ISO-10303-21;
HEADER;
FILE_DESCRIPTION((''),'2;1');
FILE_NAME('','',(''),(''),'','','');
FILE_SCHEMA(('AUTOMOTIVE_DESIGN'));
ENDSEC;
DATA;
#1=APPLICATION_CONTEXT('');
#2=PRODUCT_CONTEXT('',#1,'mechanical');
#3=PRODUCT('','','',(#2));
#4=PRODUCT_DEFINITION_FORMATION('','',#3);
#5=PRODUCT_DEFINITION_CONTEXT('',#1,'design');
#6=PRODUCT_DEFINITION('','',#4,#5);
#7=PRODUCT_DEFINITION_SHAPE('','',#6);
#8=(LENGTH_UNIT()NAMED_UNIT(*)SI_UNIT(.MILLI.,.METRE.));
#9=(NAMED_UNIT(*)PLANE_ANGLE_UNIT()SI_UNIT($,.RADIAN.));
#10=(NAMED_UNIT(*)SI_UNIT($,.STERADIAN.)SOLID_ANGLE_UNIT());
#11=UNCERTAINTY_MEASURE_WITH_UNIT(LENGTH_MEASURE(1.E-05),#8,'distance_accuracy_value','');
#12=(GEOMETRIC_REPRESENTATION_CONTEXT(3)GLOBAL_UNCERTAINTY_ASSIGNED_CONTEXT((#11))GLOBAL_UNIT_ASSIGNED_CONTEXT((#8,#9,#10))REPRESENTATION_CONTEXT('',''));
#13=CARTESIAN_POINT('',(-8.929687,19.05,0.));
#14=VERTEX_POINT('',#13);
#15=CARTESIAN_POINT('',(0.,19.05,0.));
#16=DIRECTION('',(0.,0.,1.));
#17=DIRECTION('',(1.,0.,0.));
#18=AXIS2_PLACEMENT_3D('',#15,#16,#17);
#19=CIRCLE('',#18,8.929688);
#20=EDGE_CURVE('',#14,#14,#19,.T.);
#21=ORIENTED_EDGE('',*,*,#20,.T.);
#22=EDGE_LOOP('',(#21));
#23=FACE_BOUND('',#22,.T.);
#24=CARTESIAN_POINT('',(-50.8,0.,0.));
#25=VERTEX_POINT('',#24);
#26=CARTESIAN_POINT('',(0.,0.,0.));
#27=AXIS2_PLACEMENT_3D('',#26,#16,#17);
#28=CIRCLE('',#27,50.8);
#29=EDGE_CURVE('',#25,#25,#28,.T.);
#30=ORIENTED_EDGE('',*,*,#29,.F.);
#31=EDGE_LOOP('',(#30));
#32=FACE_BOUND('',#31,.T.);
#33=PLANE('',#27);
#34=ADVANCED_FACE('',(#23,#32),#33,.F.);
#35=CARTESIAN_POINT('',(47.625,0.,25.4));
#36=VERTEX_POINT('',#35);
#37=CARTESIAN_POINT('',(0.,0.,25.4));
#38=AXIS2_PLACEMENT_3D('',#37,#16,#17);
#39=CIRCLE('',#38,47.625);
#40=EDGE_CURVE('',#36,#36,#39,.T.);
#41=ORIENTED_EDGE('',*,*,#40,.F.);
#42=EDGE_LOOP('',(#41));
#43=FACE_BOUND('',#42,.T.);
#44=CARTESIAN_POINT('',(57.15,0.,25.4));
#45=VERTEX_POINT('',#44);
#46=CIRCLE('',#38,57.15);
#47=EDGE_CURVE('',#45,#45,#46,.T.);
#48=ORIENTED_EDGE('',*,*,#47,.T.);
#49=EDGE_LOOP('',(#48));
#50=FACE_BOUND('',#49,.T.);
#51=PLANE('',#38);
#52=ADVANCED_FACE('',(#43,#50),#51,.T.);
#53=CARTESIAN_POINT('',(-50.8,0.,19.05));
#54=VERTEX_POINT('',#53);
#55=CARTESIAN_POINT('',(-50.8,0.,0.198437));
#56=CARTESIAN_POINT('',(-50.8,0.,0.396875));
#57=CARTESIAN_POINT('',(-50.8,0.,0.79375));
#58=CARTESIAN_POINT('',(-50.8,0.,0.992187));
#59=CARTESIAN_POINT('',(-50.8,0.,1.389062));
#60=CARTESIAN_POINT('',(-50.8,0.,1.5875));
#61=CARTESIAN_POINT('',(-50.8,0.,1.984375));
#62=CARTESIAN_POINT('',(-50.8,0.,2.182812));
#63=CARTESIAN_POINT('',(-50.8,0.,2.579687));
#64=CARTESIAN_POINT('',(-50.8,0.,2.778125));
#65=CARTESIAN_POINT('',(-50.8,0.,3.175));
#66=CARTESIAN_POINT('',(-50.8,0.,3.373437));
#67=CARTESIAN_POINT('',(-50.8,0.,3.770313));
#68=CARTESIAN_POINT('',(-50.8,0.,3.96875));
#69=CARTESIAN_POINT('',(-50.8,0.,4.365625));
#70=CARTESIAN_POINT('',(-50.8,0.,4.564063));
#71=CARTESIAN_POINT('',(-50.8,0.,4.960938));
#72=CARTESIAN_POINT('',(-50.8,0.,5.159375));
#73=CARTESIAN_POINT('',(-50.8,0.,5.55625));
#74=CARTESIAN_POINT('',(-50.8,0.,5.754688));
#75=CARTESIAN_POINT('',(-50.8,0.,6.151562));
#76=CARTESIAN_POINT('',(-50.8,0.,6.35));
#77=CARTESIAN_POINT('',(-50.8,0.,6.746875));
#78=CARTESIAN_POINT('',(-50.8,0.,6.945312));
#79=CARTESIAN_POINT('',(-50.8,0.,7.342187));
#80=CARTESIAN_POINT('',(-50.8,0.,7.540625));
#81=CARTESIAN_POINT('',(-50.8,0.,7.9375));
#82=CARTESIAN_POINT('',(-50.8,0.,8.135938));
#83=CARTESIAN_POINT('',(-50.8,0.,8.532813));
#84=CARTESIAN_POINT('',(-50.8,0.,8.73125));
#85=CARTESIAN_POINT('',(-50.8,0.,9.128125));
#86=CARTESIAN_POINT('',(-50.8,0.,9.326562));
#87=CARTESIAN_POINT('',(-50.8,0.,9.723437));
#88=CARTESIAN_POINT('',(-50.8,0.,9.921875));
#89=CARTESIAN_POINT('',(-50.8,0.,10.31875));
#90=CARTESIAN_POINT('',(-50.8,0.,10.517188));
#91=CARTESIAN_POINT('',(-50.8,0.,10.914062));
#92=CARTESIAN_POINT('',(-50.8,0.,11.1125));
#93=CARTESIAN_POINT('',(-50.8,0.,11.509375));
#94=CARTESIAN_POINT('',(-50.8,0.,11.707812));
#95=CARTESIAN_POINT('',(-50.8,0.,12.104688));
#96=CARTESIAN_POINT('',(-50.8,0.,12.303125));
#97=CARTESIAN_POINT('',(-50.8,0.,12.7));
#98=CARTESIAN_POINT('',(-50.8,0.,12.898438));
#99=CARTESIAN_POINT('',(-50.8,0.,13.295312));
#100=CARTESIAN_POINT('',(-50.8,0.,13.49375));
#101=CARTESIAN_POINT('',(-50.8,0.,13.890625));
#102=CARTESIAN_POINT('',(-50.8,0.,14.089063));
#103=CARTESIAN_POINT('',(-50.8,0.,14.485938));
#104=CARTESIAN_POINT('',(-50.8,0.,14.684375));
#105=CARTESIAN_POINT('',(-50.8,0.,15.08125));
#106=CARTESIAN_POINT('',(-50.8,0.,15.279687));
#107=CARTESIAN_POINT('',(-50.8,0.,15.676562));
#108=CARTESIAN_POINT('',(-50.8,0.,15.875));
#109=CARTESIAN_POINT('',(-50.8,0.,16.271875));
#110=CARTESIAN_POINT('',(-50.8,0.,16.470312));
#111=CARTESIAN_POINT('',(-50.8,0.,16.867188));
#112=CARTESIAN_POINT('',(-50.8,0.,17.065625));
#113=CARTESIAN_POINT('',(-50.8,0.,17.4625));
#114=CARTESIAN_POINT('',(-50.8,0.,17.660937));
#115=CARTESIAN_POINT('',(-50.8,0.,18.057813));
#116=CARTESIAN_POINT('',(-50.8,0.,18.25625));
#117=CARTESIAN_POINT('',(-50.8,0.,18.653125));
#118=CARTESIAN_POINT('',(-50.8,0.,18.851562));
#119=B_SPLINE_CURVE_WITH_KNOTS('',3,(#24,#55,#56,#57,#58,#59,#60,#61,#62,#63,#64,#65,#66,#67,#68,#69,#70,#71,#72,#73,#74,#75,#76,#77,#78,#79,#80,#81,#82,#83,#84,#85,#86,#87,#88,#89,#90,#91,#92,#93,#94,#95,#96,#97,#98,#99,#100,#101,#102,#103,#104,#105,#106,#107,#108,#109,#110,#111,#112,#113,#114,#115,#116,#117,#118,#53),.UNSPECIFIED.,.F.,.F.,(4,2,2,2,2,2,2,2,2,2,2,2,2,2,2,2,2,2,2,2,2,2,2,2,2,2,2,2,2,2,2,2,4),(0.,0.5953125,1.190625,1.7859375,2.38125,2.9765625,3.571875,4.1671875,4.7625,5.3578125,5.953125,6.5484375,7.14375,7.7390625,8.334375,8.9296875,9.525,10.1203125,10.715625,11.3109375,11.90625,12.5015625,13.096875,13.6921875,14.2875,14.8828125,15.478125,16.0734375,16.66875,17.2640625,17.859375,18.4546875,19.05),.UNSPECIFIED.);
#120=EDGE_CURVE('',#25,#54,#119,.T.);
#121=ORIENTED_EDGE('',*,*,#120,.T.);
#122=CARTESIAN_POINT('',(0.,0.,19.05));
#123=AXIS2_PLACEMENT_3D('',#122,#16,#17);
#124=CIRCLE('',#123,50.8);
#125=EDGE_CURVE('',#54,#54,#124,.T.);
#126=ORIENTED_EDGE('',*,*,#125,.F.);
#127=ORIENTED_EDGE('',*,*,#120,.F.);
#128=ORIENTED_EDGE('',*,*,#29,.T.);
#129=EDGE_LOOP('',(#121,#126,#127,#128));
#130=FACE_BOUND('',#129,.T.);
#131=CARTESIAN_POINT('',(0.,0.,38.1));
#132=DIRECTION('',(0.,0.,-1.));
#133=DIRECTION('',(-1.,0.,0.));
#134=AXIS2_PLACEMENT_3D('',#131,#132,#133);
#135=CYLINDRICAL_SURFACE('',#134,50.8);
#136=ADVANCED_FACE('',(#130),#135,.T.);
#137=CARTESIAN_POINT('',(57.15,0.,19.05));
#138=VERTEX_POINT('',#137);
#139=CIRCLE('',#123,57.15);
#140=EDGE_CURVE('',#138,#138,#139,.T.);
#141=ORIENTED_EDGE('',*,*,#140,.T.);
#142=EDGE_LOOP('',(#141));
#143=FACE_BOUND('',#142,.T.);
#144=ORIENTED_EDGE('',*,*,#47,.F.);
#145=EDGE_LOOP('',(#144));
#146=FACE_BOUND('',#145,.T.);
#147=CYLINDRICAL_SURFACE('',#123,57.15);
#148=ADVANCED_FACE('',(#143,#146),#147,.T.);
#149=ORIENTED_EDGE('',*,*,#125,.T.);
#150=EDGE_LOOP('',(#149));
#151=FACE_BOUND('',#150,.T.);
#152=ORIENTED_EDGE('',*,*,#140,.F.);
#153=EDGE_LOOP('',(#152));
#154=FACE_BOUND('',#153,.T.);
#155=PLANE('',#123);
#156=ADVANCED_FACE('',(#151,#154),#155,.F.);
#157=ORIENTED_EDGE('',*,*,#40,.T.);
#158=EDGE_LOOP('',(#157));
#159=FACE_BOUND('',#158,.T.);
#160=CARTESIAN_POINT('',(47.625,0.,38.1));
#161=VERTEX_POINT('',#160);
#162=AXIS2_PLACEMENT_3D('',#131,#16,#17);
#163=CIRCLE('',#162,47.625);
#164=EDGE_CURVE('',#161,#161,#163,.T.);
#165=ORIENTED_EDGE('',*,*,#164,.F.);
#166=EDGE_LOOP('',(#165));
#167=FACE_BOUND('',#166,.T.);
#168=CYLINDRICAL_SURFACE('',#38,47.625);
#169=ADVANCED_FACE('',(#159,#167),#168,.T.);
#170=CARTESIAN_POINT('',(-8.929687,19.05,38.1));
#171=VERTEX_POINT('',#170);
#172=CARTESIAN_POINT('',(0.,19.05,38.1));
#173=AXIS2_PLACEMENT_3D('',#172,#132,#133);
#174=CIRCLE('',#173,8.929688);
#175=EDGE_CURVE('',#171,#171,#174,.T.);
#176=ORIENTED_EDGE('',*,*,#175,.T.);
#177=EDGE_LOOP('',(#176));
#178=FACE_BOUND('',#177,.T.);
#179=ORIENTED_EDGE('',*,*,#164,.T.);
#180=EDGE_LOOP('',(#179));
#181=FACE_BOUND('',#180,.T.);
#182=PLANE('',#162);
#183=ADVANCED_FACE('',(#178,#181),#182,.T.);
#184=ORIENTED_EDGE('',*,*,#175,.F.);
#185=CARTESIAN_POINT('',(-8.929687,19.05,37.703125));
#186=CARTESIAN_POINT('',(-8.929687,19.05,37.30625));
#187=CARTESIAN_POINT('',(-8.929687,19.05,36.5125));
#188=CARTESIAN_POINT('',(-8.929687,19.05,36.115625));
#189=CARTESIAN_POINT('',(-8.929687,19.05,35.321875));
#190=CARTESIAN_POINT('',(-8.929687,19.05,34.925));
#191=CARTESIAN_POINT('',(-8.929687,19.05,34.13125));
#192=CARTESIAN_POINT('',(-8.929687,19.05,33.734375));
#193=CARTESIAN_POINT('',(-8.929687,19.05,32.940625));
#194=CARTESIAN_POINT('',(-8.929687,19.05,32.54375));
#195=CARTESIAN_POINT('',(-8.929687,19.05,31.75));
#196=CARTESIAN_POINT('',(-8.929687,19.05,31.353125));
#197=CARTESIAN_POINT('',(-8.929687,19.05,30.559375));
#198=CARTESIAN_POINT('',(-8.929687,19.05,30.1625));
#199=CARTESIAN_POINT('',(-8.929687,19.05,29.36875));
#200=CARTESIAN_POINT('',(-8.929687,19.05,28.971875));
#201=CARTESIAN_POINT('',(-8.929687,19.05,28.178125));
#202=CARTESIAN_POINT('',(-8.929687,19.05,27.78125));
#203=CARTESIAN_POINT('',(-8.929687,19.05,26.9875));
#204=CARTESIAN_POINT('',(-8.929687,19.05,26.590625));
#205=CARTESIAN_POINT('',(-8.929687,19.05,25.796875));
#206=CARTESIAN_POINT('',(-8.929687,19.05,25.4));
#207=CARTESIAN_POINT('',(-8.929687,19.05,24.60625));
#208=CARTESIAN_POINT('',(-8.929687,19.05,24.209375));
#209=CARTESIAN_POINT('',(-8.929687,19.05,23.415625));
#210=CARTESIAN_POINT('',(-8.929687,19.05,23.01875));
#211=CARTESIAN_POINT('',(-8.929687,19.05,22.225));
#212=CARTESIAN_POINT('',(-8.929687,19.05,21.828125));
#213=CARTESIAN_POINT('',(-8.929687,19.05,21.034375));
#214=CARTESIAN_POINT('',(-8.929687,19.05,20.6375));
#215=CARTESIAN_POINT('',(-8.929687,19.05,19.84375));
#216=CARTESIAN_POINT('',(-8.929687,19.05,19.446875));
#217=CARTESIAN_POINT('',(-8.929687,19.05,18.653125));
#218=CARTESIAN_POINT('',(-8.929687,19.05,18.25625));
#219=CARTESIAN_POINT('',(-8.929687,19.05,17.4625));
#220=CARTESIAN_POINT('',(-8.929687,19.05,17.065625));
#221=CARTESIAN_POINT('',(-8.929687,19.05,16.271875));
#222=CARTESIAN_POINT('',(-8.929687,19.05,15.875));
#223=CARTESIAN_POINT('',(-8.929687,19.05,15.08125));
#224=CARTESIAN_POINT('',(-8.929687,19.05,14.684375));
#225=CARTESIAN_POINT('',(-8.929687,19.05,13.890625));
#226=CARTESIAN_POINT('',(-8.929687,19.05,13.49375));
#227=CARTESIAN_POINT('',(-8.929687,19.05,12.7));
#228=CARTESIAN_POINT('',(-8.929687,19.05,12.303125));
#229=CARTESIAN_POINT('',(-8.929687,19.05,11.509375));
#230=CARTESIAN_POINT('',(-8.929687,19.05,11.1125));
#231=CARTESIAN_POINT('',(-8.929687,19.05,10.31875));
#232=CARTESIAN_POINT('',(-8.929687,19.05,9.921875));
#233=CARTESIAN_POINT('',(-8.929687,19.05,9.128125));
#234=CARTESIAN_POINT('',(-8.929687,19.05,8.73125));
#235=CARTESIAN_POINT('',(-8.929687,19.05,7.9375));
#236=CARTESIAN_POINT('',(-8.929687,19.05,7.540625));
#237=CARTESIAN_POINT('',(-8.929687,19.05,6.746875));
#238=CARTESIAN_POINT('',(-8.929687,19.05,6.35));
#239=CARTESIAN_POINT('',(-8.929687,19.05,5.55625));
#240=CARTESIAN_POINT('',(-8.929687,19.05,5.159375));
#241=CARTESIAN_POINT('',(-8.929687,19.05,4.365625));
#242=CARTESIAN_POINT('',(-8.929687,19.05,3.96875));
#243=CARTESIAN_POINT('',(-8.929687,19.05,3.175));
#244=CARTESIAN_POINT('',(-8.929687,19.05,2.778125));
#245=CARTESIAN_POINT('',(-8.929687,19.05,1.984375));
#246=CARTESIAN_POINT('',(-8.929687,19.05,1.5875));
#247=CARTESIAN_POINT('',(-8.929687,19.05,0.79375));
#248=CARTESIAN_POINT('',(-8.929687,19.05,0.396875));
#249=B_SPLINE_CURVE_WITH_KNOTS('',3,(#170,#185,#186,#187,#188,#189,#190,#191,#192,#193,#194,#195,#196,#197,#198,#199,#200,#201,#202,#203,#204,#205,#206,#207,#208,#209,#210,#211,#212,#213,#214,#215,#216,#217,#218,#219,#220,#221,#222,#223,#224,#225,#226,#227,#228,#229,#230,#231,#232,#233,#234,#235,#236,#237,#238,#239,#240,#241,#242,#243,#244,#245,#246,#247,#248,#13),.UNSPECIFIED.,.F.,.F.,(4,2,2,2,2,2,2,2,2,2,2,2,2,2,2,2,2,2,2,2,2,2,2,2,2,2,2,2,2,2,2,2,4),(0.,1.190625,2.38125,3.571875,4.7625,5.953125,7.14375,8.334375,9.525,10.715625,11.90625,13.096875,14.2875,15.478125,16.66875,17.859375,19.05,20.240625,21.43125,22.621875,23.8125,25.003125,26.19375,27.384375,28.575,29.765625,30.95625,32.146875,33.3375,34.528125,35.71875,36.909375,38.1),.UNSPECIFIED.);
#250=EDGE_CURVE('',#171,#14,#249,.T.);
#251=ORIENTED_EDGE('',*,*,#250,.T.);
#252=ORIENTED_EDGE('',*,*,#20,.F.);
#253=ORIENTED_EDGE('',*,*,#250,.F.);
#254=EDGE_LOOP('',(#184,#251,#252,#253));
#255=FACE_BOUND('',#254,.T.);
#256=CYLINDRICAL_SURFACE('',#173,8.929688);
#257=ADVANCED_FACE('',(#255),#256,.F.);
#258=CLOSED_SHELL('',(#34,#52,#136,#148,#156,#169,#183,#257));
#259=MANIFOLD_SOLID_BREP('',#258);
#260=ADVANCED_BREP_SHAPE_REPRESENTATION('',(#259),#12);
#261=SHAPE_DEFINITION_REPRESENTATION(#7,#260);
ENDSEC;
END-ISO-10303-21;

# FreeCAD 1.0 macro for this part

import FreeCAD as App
import Part
import Sketcher
Q = App.Units.Quantity

doc = App.newDocument("Part")
body = doc.addObject("PartDesign::Body", "Body")

# Sketch on XY plane
sketch1 = body.newObject("Sketcher::SketchObject", "Sketch")
sketch1.AttachmentSupport = (doc.getObject("XY_Plane"), [""])
sketch1.MapMode = "FlatFace"
sketch1.addGeometry(Part.Circle(App.Vector(0, 0, 0), App.Vector(0, 0, 1), 51), False)
sketch1.addConstraint([
    Sketcher.Constraint("Coincident", 0, 3, -1, 1),
    Sketcher.Constraint("Diameter", 0, Q("4 in")),
])
pad1 = body.newObject("PartDesign::Pad", "Pad")
pad1.Profile = sketch1
pad1.Length = Q("1.5 in")

# Sketch on XY plane
sketch2 = body.newObject("Sketcher::SketchObject", "Sketch001")
sketch2.AttachmentSupport = (doc.getObject("XY_Plane"), [""])
sketch2.MapMode = "FlatFace"
sketch2.AttachmentOffset = App.Placement(App.Vector(0, 0, 1 * 25.4), App.Rotation())
sketch2.addGeometry([
    Part.Circle(App.Vector(0, 0, 0), App.Vector(0, 0, 1), 51),
    Part.Circle(App.Vector(0, 0, 0), App.Vector(0, 0, 1), 48),
], False)
sketch2.addConstraint([
    Sketcher.Constraint("Coincident", 0, 3, -1, 1),
    Sketcher.Constraint("Coincident", 1, 3, -1, 1),
    Sketcher.Constraint("Diameter", 0, Q("4 in")),
    Sketcher.Constraint("Diameter", 1, Q("3.75 in")),
])
pocket1 = body.newObject("PartDesign::Pocket", "Pocket")
pocket1.Profile = sketch2
pocket1.Length = Q("0.5 in")
pocket1.Reversed = True

# Sketch on XY plane
sketch3 = body.newObject("Sketcher::SketchObject", "Sketch002")
sketch3.AttachmentSupport = (doc.getObject("XY_Plane"), [""])
sketch3.MapMode = "FlatFace"
sketch3.AttachmentOffset = App.Placement(App.Vector(0, 0, 1 * 25.4), App.Rotation())
sketch3.addGeometry(Part.Circle(App.Vector(0, 0, 0), App.Vector(0, 0, 1), 57), False)
sketch3.addConstraint([
    Sketcher.Constraint("Coincident", 0, 3, -1, 1),
    Sketcher.Constraint("Diameter", 0, Q("4.5 in")),
])
pad2 = body.newObject("PartDesign::Pad", "Pad001")
pad2.Profile = sketch3
pad2.Length = Q("0.25 in")
pad2.Reversed = True

# Sketch on XY plane
sketch4 = body.newObject("Sketcher::SketchObject", "Sketch003")
sketch4.AttachmentSupport = (doc.getObject("XY_Plane"), [""])
sketch4.MapMode = "FlatFace"
sketch4.addGeometry(Part.Circle(App.Vector(0, 19, 0), App.Vector(0, 0, 1), 9), False)
sketch4.addConstraint([
    Sketcher.Constraint("PointOnObject", 0, 3, -2),
    Sketcher.Constraint("Diameter", 0, Q("0.703125 in")),
    Sketcher.Constraint("DistanceY", -1, 1, 0, 3, Q("0.75 in")),
])
pocket2 = body.newObject("PartDesign::Pocket", "Pocket001")
pocket2.Profile = sketch4
pocket2.Type = "ThroughAll"
pocket2.Midplane = True

doc.recompute()
